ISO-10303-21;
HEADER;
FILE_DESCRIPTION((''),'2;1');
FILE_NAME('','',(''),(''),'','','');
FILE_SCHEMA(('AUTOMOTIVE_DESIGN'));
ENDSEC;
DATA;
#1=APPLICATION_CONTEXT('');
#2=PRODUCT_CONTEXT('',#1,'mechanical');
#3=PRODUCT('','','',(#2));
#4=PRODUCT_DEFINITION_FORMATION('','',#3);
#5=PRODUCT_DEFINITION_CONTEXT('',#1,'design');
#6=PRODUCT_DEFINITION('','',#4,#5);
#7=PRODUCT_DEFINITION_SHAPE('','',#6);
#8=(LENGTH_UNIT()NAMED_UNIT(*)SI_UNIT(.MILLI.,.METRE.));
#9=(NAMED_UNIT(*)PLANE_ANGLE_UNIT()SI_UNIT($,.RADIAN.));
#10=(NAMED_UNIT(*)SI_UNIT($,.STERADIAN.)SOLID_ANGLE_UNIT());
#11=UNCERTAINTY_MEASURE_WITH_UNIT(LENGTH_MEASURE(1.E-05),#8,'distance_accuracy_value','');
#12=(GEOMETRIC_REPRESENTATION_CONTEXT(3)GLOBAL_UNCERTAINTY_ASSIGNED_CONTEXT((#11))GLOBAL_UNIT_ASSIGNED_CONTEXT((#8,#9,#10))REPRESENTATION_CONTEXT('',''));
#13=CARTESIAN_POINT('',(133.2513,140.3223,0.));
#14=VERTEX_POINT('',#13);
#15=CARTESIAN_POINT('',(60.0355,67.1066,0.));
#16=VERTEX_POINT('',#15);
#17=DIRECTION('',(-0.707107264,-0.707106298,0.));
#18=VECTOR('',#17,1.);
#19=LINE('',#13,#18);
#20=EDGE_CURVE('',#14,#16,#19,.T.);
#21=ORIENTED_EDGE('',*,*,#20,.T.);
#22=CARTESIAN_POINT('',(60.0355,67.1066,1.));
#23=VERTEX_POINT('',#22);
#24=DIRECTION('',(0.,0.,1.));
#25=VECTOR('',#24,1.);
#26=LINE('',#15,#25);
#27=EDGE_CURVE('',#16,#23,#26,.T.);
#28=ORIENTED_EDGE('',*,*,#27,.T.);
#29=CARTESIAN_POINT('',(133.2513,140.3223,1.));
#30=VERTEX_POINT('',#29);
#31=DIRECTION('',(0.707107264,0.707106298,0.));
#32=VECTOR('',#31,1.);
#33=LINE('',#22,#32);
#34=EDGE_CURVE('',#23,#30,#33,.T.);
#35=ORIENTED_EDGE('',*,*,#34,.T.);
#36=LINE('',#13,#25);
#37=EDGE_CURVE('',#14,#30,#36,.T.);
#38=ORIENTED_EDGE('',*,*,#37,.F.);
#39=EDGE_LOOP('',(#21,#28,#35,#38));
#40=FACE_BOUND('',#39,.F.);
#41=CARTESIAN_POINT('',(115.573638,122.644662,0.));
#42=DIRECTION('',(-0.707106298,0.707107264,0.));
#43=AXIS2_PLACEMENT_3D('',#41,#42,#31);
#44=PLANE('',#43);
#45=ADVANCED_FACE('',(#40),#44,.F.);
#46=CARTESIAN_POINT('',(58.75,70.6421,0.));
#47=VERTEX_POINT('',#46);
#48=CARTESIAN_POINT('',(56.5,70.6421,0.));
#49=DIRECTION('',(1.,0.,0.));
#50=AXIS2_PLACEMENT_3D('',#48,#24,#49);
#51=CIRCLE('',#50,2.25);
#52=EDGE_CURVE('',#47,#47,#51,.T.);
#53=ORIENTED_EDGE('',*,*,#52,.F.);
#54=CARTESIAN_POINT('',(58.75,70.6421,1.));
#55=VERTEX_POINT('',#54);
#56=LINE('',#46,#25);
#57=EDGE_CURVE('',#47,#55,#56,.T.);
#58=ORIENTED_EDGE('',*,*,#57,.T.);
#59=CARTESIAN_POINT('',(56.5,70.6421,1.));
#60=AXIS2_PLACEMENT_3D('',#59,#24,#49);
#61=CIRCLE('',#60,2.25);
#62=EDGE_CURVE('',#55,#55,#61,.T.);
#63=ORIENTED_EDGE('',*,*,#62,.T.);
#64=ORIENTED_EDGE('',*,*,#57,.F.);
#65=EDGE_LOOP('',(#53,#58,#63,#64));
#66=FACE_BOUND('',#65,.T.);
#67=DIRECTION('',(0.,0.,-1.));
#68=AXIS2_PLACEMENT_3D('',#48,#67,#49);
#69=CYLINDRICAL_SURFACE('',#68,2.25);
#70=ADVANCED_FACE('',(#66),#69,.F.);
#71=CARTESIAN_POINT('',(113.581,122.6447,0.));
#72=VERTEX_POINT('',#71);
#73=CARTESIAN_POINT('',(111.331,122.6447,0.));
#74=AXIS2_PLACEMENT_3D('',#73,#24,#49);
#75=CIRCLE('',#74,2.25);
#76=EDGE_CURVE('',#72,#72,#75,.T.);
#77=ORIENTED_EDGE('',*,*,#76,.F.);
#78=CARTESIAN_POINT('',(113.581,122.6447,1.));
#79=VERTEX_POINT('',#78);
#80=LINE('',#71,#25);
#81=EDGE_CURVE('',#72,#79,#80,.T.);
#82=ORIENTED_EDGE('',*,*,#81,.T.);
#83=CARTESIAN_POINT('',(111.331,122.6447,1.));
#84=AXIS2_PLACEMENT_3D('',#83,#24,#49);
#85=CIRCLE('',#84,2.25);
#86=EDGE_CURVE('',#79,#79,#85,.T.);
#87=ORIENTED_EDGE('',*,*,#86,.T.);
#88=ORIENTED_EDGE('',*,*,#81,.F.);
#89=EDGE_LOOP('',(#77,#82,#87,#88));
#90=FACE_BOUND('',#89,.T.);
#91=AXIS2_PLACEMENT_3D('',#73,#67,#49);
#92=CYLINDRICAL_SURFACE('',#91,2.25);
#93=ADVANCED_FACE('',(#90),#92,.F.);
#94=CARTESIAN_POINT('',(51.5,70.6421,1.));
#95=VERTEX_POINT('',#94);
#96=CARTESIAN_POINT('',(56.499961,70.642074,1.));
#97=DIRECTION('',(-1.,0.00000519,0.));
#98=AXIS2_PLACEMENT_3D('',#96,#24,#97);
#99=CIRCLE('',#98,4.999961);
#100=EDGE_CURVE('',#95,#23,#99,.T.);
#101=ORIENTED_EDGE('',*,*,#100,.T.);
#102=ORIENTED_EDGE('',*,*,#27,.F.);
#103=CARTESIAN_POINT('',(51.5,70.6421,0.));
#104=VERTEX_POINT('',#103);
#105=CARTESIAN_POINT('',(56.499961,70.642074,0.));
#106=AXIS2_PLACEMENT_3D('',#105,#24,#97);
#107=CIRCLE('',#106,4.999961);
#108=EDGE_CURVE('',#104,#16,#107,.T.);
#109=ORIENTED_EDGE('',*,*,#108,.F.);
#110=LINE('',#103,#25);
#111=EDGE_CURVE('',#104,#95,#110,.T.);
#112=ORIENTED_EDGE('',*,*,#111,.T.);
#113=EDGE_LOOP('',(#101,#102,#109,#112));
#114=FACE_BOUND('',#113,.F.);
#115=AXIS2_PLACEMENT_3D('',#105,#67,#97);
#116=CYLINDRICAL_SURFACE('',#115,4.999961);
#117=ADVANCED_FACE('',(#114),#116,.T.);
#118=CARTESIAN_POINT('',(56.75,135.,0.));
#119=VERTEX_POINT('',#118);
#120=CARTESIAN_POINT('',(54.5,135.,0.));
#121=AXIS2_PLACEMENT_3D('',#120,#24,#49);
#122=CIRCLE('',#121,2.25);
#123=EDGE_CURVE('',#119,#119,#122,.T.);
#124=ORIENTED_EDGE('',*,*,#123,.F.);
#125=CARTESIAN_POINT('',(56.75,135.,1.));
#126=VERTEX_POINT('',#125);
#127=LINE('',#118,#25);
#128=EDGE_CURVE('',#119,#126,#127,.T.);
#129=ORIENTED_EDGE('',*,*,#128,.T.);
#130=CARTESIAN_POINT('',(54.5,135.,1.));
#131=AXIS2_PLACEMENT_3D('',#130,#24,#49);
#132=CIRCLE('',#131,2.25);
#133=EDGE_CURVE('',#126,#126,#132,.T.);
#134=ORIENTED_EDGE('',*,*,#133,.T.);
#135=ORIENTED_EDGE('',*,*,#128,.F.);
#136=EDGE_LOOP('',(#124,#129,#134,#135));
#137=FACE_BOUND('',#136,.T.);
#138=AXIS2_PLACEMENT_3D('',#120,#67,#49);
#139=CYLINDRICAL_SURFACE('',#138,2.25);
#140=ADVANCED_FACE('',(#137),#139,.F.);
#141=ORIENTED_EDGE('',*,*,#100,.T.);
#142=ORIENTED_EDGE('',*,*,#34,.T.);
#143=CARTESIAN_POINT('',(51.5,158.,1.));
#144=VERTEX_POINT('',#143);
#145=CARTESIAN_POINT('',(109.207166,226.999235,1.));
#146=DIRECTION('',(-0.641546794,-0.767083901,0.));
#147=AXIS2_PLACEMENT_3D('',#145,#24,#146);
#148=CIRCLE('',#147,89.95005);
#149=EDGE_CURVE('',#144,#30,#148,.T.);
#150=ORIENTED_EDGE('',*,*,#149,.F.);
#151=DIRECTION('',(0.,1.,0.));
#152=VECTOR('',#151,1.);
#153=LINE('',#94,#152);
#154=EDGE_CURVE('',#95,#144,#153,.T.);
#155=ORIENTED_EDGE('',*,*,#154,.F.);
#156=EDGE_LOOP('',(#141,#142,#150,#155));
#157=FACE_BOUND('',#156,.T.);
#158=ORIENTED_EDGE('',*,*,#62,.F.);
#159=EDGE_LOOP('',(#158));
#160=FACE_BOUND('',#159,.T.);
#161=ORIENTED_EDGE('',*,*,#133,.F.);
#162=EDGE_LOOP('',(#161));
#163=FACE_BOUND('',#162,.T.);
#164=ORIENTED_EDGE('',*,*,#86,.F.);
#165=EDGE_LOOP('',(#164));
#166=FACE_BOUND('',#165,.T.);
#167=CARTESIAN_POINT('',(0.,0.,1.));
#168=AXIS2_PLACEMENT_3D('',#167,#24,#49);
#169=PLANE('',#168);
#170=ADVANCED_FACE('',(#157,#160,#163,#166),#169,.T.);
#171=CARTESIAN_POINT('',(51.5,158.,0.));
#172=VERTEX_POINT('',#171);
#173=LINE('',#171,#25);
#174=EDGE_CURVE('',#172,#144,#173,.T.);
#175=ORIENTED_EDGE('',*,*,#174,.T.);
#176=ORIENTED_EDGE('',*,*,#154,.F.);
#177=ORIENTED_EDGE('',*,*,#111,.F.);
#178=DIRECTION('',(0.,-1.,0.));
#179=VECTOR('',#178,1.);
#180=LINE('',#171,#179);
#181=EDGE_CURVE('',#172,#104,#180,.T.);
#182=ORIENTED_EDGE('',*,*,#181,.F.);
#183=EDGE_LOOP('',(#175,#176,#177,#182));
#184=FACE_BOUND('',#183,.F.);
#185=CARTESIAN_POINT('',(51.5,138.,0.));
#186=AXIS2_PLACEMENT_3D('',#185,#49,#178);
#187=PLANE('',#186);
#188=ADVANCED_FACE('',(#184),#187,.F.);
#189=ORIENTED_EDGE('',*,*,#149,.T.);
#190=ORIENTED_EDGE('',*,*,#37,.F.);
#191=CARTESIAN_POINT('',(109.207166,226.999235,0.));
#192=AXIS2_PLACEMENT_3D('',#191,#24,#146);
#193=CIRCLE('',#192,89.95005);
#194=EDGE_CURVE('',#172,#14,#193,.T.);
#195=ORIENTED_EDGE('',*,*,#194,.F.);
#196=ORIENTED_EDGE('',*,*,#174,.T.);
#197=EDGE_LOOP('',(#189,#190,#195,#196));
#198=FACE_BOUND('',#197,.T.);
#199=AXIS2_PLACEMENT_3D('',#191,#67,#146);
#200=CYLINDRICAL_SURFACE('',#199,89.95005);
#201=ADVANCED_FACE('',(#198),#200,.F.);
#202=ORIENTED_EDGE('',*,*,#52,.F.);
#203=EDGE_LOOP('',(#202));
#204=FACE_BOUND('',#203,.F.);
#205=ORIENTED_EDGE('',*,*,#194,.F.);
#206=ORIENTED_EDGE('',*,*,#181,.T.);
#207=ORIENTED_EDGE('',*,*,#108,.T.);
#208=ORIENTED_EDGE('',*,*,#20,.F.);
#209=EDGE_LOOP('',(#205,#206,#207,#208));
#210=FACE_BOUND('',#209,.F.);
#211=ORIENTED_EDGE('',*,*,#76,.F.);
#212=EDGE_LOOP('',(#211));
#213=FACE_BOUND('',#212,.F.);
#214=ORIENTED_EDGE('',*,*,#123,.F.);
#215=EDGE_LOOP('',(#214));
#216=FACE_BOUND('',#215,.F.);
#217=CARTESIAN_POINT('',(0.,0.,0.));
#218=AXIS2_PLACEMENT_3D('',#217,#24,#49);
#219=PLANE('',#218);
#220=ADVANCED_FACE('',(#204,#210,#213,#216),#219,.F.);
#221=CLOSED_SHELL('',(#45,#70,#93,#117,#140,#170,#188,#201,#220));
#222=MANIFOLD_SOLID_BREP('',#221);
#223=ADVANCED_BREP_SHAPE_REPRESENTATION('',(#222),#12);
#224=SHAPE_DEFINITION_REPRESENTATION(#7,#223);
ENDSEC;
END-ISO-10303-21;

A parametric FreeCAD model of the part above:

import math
import FreeCAD as App
import Part
import Sketcher

V = App.Vector
Q = App.Units.Quantity

doc = App.newDocument("Part")
body = doc.addObject("PartDesign::Body", "Body")

# Sketch on XY plane
sketch1 = body.newObject("Sketcher::SketchObject", "Sketch")
sketch1.AttachmentSupport = (doc.getObject("XY_Plane"), [""])
sketch1.MapMode = "FlatFace"
sketch1.addGeometry([
    Part.ArcOfCircle(Part.Circle(V(56.5, 70.6, 0), V(0, 0, 1), 5), math.radians(180), math.radians(315)),  # 0
    Part.LineSegment(V(60, 67.1, 0), V(133.3, 140.3, 0)),  # 1
    Part.ArcOfCircle(Part.Circle(V(109.2, 227, 0), V(0, 0, 1), 89.9), math.radians(-130), math.radians(-74)),  # 2
    Part.LineSegment(V(51.5, 158, 0), V(51.5, 70.6, 0)),  # 3
    Part.Circle(V(54.5, 135, 0), V(0, 0, 1), 2.2),  # 4
    Part.Circle(V(56.5, 70.6, 0), V(0, 0, 1), 2.2),  # 5
    Part.Circle(V(111.3, 122.6, 0), V(0, 0, 1), 2.2),  # 6
], False)
sketch1.addConstraint([
    Sketcher.Constraint("Tangent", 0, 2, 1, 1),
    Sketcher.Constraint("Coincident", 1, 2, 2, 2),
    Sketcher.Constraint("Coincident", 2, 1, 3, 1),
    Sketcher.Constraint("Tangent", 3, 2, 0, 1),
    Sketcher.Constraint("Vertical", 3),
    Sketcher.Constraint("Coincident", 5, 3, 0, 3),
    Sketcher.Constraint("Equal", 4, 5),
    Sketcher.Constraint("Equal", 5, 6),
    Sketcher.Constraint("Radius", 0, 5.0),
    Sketcher.Constraint("Diameter", 4, 4.5),
    Sketcher.Constraint("Angle", 1, Q("45 deg")),
    Sketcher.Constraint("DistanceX", 2, 1, 4, 3, 3.0),
    Sketcher.Constraint("Radius", 2, 89.95),
    Sketcher.Constraint("DistanceY", -1, 1, 4, 3, 135.0),
    Sketcher.Constraint("DistanceY", -1, 1, 2, 1, 158.0),
    Sketcher.Constraint("DistanceX", -1, 1, 0, 3, 56.5),
    Sketcher.Constraint("DistanceY", 3, 2, 3, 1, 87.358),
    Sketcher.Constraint("DistanceX", -1, 1, 2, 3, 109.207),
    Sketcher.Constraint("DistanceX", -1, 1, 6, 3, 111.331),
    Sketcher.Constraint("DistanceY", -1, 1, 6, 3, 122.6447),
])
pad1 = body.newObject("PartDesign::Pad", "Pad")
pad1.Profile = sketch1
pad1.Length = 1

doc.recompute()
